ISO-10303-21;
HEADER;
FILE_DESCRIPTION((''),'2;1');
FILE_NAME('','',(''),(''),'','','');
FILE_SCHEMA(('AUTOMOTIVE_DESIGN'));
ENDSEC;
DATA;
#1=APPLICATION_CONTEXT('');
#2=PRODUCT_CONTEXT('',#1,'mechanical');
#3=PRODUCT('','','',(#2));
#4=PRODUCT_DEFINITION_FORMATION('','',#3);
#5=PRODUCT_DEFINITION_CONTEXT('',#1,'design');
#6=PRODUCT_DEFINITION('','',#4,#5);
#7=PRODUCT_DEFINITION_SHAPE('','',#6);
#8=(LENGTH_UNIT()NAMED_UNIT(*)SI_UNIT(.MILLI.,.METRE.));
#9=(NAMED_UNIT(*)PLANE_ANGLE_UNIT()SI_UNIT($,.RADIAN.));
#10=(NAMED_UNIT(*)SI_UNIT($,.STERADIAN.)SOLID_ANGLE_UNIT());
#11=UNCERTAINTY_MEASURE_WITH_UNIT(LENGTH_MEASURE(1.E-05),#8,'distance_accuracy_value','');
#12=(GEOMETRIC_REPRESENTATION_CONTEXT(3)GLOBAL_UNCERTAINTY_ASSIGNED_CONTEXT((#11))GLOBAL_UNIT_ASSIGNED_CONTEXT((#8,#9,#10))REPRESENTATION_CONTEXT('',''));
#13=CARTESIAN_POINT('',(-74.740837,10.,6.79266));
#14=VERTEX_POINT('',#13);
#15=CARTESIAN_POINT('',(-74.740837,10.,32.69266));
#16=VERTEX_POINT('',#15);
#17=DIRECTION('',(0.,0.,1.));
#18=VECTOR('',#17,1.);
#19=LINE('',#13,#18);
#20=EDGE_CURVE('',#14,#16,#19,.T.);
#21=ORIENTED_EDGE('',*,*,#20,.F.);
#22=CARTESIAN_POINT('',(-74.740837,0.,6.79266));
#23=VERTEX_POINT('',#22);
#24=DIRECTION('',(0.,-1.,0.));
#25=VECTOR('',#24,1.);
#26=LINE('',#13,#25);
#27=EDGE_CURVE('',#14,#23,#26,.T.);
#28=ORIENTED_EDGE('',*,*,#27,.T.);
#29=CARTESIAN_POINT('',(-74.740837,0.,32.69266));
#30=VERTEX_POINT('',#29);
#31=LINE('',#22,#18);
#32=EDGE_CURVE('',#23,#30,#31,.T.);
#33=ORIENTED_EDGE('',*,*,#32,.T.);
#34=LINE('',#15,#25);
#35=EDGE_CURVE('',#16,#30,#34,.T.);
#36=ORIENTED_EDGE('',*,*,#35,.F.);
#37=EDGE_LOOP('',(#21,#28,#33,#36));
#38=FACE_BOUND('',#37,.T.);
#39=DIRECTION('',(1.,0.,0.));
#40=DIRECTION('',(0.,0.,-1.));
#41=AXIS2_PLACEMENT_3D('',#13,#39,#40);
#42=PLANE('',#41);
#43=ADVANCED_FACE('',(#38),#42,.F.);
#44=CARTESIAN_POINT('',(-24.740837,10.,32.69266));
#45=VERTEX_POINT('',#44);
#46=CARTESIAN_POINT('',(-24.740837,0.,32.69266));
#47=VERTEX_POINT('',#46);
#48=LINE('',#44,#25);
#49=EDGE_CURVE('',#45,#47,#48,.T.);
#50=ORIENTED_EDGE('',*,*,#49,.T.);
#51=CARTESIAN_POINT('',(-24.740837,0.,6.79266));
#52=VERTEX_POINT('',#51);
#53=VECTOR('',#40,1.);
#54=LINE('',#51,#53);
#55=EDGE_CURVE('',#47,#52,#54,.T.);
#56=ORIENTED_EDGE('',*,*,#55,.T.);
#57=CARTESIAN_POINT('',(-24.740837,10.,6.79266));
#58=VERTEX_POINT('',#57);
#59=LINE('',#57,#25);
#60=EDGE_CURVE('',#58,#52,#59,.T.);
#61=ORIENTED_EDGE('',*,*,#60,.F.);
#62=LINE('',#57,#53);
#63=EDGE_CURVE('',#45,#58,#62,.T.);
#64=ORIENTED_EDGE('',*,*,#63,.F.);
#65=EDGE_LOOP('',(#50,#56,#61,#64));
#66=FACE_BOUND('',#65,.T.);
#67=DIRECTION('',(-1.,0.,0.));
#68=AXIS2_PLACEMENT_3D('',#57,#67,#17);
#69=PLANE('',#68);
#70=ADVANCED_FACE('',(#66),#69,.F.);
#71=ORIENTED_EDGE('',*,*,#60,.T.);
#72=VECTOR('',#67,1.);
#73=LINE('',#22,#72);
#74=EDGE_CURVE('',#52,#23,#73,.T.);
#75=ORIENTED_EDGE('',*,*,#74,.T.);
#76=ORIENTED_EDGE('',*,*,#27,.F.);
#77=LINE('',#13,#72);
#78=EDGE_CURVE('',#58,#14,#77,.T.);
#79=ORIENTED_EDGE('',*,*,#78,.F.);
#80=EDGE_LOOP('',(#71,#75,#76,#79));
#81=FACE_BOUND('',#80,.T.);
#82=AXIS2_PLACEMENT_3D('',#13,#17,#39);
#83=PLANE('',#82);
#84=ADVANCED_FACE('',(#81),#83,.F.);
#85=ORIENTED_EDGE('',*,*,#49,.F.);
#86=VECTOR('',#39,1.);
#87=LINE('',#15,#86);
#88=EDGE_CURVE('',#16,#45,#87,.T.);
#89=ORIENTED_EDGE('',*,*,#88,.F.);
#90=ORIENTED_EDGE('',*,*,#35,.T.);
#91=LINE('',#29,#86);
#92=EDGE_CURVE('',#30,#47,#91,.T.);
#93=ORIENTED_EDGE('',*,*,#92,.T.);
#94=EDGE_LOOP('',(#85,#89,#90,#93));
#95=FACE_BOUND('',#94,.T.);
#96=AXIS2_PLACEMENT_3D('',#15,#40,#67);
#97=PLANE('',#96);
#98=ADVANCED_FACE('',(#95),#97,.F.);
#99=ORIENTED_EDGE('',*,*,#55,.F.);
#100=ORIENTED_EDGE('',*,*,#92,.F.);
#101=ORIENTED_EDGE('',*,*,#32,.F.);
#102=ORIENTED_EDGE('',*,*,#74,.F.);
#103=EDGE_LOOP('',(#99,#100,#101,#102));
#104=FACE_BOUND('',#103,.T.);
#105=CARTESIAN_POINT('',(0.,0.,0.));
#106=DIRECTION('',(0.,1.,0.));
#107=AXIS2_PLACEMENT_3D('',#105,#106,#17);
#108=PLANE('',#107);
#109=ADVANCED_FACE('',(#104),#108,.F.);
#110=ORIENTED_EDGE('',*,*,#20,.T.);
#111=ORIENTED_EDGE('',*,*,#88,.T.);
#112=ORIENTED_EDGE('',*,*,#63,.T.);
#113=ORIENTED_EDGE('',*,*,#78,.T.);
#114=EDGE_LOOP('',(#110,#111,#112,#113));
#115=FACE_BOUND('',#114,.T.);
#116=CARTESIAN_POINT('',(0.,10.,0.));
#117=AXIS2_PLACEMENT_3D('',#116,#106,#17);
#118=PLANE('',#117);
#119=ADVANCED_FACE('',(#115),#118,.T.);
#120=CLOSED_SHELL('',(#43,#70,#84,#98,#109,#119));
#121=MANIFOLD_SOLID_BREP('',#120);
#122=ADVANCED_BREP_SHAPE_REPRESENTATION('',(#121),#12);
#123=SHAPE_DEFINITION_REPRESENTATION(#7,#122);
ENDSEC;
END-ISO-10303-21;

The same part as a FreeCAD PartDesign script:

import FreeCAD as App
import Part
import Sketcher
from FreeCAD import Vector
Q = App.Units.Quantity

doc = App.newDocument("Part")
body = doc.addObject("PartDesign::Body", "Body")

# Sketch on XZ plane
sketch1 = doc.addObject("Sketcher::SketchObject", "Sketch")
body.addObject(sketch1)
sketch1.AttachmentSupport = (doc.XZ_Plane, [""])
sketch1.MapMode = "FlatFace"
sketch1.addGeometry([
    Part.LineSegment(Vector(-75, 7, 0), Vector(-75, 33, 0)),
    Part.LineSegment(Vector(-75, 33, 0), Vector(-25, 33, 0)),
    Part.LineSegment(Vector(-25, 33, 0), Vector(-25, 7, 0)),
    Part.LineSegment(Vector(-25, 7, 0), Vector(-75, 7, 0)),
], False)
sketch1.addConstraint([
    Sketcher.Constraint("Coincident", 0, 2, 1, 1),
    Sketcher.Constraint("Coincident", 1, 2, 2, 1),
    Sketcher.Constraint("Coincident", 2, 2, 3, 1),
    Sketcher.Constraint("Coincident", 3, 2, 0, 1),
    Sketcher.Constraint("Vertical", 0),
    Sketcher.Constraint("Horizontal", 1),
    Sketcher.Constraint("Vertical", 2),
    Sketcher.Constraint("Horizontal", 3),
    Sketcher.Constraint("DistanceX", 1, 1, 1, 2, Q("50 mm")),
    Sketcher.Constraint("DistanceY", 0, 1, 0, 2, Q("25.9 mm")),
    Sketcher.Constraint("DistanceY", -1, 1, 0, 2, Q("32.69266 mm")),
    Sketcher.Constraint("DistanceX", 0, 2, -1, 1, Q("74.740837 mm")),
])
pad1 = doc.addObject("PartDesign::Pad", "Pad")
body.addObject(pad1)
pad1.Profile = sketch1
pad1.Length = 10
pad1.Reversed = True

doc.recompute()
